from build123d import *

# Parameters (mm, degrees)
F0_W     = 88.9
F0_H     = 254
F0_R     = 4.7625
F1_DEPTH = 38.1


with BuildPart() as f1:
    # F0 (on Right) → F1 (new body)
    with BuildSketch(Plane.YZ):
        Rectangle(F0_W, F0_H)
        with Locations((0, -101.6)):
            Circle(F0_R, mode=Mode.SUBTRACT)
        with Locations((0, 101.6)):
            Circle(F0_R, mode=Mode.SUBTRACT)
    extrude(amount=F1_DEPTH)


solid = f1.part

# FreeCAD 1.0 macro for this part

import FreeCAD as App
import Part
import Sketcher
from FreeCAD import Vector
Q = App.Units.Quantity


def add_polygon(sketch, points):
    """Adds a closed chain of lines whose ends are joined by coincident constraints."""
    first, n = sketch.GeometryCount, len(points)
    for a, b in zip(points, points[1:] + points[:1]):
        sketch.addGeometry(Part.LineSegment(App.Vector(*a, 0), App.Vector(*b, 0)), False)
    for i in range(n):
        sketch.addConstraint(Sketcher.Constraint("Coincident", first + i, 2, first + (i + 1) % n, 1))

doc = App.newDocument("Part")
body = doc.addObject("PartDesign::Body", "Body")

# Sketch on YZ plane
sketch1 = body.newObject("Sketcher::SketchObject", "Sketch")
sketch1.AttachmentSupport = (doc.getObject("YZ_Plane"), [""])
sketch1.MapMode = "FlatFace"
add_polygon(sketch1, [(-44.45, 127), (-44.45, -127), (44.45, -127), (44.45, 127)])  # lines 0-3
sketch1.addGeometry(Part.Circle(Vector(0, -101.6, 0), Vector(0, 0, 1), 4.7625), False)  # 4
sketch1.addGeometry(Part.Circle(Vector(0, 101.6, 0), Vector(0, 0, 1), 4.7625), False)  # 5
sketch1.addConstraint(Sketcher.Constraint("Vertical", 0))
sketch1.addConstraint(Sketcher.Constraint("Horizontal", 1))
sketch1.addConstraint(Sketcher.Constraint("Vertical", 2))
sketch1.addConstraint(Sketcher.Constraint("Horizontal", 3))
sketch1.addConstraint(Sketcher.Constraint("Equal", 4, 5))
sketch1.addConstraint(Sketcher.Constraint("Symmetric", 4, 3, 5, 3, -1, 1))
sketch1.addConstraint(Sketcher.Constraint("Symmetric", 0, 2, 2, 2, -1, 1))
sketch1.addConstraint(Sketcher.Constraint("PointOnObject", 4, 3, -2))
sketch1.addConstraint(Sketcher.Constraint("DistanceY", 0, 2, 0, 1, Q("10 in")))
sketch1.addConstraint(Sketcher.Constraint("Diameter", 4, Q("0.375 in")))
sketch1.addConstraint(Sketcher.Constraint("DistanceX", 1, 1, 1, 2, Q("3.5 in")))
sketch1.addConstraint(Sketcher.Constraint("DistanceY", 4, 3, -1, 1, Q("4 in")))
pad1 = body.newObject("PartDesign::Pad", "Pad")
pad1.Profile = sketch1
pad1.Length = Q("1.5 in")

doc.recompute()
